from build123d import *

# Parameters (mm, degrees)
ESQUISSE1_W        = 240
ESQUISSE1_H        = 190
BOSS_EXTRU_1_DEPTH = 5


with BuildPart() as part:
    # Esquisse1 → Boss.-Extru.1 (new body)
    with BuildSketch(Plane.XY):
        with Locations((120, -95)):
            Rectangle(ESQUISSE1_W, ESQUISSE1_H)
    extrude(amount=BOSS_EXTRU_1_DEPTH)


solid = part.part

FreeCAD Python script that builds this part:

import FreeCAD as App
import Part
import Sketcher
Q = App.Units.Quantity

doc = App.newDocument("Part")
body = doc.addObject("PartDesign::Body", "Body")

# Sketch on XY plane
sketch1 = doc.addObject("Sketcher::SketchObject", "Sketch")
body.addObject(sketch1)
sketch1.AttachmentSupport = (doc.XY_Plane, [""])
sketch1.MapMode = "FlatFace"
sketch1.addGeometry([
    Part.LineSegment(App.Vector(0, 0, 0), App.Vector(0, -190, 0)),
    Part.LineSegment(App.Vector(0, -190, 0), App.Vector(240, -190, 0)),
    Part.LineSegment(App.Vector(240, -190, 0), App.Vector(240, 0, 0)),
    Part.LineSegment(App.Vector(240, 0, 0), App.Vector(0, 0, 0)),
], False)
sketch1.addConstraint([
    Sketcher.Constraint("Coincident", 0, 2, 1, 1),
    Sketcher.Constraint("Coincident", 1, 2, 2, 1),
    Sketcher.Constraint("Coincident", 2, 2, 3, 1),
    Sketcher.Constraint("Coincident", 3, 2, 0, 1),
    Sketcher.Constraint("Vertical", 0),
    Sketcher.Constraint("Horizontal", 1),
    Sketcher.Constraint("Vertical", 2),
    Sketcher.Constraint("Horizontal", 3),
    Sketcher.Constraint("Coincident", 3, 2, -1, 1),
    Sketcher.Constraint("DistanceX", 1, 1, 1, 2, Q("240 mm")),
    Sketcher.Constraint("DistanceY", 0, 2, 0, 1, Q("190 mm")),
])
pad1 = doc.addObject("PartDesign::Pad", "Pad")
body.addObject(pad1)
pad1.Profile = sketch1
pad1.Length = 5

doc.recompute()
